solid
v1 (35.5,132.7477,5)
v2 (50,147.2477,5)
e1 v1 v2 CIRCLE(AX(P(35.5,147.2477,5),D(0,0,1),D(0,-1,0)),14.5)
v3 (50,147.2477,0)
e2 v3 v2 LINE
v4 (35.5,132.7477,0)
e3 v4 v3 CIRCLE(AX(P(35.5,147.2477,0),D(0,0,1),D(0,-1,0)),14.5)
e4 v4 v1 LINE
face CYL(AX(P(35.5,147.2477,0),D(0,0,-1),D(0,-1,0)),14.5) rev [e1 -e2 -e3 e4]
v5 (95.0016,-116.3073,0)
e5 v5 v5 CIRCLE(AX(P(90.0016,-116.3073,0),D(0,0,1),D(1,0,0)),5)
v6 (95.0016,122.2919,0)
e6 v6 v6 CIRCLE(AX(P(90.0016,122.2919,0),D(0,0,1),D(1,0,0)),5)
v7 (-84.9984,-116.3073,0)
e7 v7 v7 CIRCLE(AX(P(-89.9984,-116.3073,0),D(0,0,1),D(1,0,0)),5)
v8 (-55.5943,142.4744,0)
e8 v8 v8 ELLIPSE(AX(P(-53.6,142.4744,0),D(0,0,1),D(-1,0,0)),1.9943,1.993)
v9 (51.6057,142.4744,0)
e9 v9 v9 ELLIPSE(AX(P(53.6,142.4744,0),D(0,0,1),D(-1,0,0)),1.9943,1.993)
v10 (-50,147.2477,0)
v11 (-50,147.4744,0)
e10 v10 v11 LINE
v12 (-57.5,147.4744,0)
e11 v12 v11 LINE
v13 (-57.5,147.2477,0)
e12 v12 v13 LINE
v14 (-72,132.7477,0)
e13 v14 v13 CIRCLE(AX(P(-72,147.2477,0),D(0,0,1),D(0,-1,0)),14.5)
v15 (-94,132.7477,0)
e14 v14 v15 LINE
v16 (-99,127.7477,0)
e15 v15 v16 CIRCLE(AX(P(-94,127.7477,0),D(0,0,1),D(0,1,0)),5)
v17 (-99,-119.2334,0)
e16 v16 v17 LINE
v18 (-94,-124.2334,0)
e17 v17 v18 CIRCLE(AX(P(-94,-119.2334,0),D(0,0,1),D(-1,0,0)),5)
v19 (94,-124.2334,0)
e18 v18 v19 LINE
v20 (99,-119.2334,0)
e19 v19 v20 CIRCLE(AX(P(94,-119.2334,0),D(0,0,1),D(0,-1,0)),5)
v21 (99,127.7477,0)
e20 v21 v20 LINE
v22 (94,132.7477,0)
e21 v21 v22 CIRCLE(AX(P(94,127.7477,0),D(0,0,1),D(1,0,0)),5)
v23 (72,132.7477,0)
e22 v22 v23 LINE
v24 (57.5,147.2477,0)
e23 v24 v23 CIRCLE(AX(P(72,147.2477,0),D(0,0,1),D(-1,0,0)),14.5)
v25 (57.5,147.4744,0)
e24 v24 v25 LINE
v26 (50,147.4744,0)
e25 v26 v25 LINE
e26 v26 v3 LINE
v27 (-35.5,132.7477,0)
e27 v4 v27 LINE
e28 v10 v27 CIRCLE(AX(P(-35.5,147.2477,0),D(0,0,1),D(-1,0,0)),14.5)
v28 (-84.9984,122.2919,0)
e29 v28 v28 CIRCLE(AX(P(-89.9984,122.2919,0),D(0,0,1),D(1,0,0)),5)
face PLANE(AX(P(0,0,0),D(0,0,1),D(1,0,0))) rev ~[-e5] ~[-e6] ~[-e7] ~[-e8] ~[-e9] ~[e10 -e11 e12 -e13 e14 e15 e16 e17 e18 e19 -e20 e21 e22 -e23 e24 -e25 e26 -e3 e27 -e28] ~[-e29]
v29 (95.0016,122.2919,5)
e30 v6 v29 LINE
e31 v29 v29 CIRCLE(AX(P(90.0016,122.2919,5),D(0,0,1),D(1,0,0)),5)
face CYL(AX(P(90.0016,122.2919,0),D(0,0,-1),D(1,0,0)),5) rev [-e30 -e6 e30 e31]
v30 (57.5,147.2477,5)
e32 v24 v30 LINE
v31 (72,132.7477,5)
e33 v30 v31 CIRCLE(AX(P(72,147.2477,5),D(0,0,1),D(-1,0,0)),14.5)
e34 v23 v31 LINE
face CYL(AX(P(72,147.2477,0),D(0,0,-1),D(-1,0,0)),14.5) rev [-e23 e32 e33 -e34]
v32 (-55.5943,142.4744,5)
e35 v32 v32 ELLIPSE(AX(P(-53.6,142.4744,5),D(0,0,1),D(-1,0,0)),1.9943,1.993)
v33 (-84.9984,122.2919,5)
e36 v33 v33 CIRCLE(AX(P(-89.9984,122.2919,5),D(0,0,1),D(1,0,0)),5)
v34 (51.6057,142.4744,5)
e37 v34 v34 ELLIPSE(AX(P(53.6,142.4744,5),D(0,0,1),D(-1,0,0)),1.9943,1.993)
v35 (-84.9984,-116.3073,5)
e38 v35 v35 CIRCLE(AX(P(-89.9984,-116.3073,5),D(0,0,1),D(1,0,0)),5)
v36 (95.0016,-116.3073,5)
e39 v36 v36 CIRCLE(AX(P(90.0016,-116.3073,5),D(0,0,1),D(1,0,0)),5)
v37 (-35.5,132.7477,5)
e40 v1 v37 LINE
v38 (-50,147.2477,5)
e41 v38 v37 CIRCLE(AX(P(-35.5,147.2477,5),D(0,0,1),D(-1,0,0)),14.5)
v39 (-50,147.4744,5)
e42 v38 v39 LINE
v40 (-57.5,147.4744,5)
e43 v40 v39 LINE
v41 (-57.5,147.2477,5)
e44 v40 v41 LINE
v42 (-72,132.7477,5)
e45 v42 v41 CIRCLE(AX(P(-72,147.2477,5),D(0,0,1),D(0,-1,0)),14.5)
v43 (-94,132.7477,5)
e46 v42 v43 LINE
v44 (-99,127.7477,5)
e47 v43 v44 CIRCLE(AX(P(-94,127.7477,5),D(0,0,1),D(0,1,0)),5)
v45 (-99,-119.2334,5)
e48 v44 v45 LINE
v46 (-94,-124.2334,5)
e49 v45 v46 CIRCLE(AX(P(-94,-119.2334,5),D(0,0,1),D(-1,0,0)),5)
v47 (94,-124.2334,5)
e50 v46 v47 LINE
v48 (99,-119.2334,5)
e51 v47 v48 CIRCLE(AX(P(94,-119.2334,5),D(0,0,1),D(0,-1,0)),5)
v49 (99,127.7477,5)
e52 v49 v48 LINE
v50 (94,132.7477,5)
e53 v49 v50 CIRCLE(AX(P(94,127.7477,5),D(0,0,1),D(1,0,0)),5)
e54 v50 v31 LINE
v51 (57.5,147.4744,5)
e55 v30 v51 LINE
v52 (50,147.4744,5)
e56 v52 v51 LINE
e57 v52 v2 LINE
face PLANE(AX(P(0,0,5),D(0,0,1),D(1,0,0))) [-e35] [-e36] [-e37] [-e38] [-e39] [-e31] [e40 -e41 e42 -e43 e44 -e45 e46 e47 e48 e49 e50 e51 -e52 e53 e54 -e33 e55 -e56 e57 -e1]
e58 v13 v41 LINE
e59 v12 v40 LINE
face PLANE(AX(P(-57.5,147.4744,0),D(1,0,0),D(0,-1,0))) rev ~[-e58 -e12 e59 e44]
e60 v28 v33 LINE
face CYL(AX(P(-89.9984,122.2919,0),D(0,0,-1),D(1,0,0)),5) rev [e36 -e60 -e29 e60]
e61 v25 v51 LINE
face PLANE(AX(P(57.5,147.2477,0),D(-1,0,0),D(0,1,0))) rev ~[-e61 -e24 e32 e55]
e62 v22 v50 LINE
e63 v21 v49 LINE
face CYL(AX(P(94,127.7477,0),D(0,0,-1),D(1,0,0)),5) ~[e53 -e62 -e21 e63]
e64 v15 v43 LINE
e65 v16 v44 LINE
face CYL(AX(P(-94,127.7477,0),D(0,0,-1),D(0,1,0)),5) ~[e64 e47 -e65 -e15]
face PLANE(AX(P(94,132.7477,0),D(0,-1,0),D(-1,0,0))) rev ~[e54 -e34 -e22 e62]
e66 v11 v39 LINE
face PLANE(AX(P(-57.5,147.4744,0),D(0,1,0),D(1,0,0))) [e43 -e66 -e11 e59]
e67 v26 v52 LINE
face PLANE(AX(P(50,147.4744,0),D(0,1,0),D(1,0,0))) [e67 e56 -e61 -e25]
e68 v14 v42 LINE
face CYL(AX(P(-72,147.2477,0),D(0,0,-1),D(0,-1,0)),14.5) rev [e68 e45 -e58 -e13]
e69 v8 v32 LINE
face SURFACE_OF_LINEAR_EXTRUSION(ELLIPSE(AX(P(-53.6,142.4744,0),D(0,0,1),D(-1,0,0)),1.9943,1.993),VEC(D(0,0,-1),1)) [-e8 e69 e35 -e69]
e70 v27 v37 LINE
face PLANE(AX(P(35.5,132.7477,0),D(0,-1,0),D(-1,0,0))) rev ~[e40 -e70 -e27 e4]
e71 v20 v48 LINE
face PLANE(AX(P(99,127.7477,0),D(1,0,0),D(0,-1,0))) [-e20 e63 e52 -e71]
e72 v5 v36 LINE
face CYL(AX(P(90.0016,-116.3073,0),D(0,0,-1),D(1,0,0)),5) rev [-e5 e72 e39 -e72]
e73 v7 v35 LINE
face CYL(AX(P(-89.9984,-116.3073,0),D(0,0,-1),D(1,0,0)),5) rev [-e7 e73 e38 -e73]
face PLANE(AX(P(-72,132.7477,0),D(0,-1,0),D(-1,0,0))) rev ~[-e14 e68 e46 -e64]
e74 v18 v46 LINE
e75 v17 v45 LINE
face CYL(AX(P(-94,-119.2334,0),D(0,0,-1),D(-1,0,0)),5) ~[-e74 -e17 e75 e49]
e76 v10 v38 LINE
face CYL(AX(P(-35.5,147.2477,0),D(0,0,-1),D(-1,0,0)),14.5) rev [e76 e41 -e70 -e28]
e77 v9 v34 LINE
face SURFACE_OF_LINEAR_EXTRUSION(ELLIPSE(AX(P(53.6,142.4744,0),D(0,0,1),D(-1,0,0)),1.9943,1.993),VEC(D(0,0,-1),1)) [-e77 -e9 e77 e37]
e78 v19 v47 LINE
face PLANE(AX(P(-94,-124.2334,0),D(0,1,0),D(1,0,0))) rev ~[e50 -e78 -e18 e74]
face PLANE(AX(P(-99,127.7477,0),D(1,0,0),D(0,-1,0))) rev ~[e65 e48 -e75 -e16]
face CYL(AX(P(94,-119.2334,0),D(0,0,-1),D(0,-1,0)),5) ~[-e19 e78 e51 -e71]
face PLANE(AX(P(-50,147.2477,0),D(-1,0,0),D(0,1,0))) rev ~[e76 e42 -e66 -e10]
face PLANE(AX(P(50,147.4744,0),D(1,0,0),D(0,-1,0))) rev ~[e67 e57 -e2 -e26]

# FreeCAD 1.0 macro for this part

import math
import FreeCAD as App
import Part
import Sketcher

doc = App.newDocument("Part")
body = doc.addObject("PartDesign::Body", "Body")

# Sketch on XY plane
sketch1 = doc.addObject("Sketcher::SketchObject", "Sketch")
body.addObject(sketch1)
sketch1.AttachmentSupport = (doc.XY_Plane, [""])
sketch1.MapMode = "FlatFace"
sketch1.addGeometry([
    Part.LineSegment(App.Vector(-50, 147.4744, 0), App.Vector(-57.5, 147.4744, 0)),  # 0
    Part.LineSegment(App.Vector(-57.5, 147.4744, 0), App.Vector(-57.5, 147.2477, 0)),  # 1
    Part.ArcOfCircle(Part.Circle(App.Vector(-72, 147.2477, 0), App.Vector(0, 0, 1), 14.5), math.radians(-90), math.radians(0)),  # 2
    Part.LineSegment(App.Vector(-72, 132.7477, 0), App.Vector(-94, 132.7477, 0)),  # 3
    Part.ArcOfCircle(Part.Circle(App.Vector(-94, 127.7477, 0), App.Vector(0, 0, 1), 5), math.radians(90), math.radians(180)),  # 4
    Part.LineSegment(App.Vector(-99, 127.7477, 0), App.Vector(-99, -119.2334, 0)),  # 5
    Part.ArcOfCircle(Part.Circle(App.Vector(-94, -119.2334, 0), App.Vector(0, 0, 1), 5), math.radians(180), math.radians(270)),  # 6
    Part.LineSegment(App.Vector(-94, -124.2334, 0), App.Vector(94, -124.2334, 0)),  # 7
    Part.ArcOfCircle(Part.Circle(App.Vector(94, -119.2334, 0), App.Vector(0, 0, 1), 5), math.radians(-90), math.radians(0)),  # 8
    Part.LineSegment(App.Vector(99, -119.2334, 0), App.Vector(99, 127.7477, 0)),  # 9
    Part.ArcOfCircle(Part.Circle(App.Vector(94, 127.7477, 0), App.Vector(0, 0, 1), 5), math.radians(0), math.radians(90)),  # 10
    Part.LineSegment(App.Vector(94, 132.7477, 0), App.Vector(72, 132.7477, 0)),  # 11
    Part.ArcOfCircle(Part.Circle(App.Vector(72, 147.2477, 0), App.Vector(0, 0, 1), 14.5), math.radians(180), math.radians(270)),  # 12
    Part.LineSegment(App.Vector(57.5, 147.2477, 0), App.Vector(57.5, 147.4744, 0)),  # 13
    Part.LineSegment(App.Vector(57.5, 147.4744, 0), App.Vector(50, 147.4744, 0)),  # 14
    Part.LineSegment(App.Vector(50, 147.4744, 0), App.Vector(50, 147.2477, 0)),  # 15
    Part.ArcOfCircle(Part.Circle(App.Vector(35.5, 147.2477, 0), App.Vector(0, 0, 1), 14.5), math.radians(-90), math.radians(0)),  # 16
    Part.LineSegment(App.Vector(35.5, 132.7477, 0), App.Vector(-35.5, 132.7477, 0)),  # 17
    Part.ArcOfCircle(Part.Circle(App.Vector(-35.5, 147.2477, 0), App.Vector(0, 0, 1), 14.5), math.radians(180), math.radians(270)),  # 18
    Part.LineSegment(App.Vector(-50, 147.2477, 0), App.Vector(-50, 147.4744, 0)),  # 19
    Part.Circle(App.Vector(-89.9984, -116.3073, 0), App.Vector(0, 0, 1), 5),  # 20
    Part.Circle(App.Vector(90.0016, -116.3073, 0), App.Vector(0, 0, 1), 5),  # 21
    Part.Circle(App.Vector(-89.9984, 122.2919, 0), App.Vector(0, 0, 1), 5),  # 22
    Part.Ellipse(App.Vector(-55.5943, 142.4744, 0), App.Vector(-53.6, 140.4814, 0), App.Vector(-53.6, 142.4744, 0)),  # 23
    Part.Ellipse(App.Vector(51.6057, 142.4744, 0), App.Vector(53.6, 140.4814, 0), App.Vector(53.6, 142.4744, 0)),  # 24
    Part.Circle(App.Vector(90.0016, 122.2919, 0), App.Vector(0, 0, 1), 5),  # 25
], False)
sketch1.addConstraint([
    Sketcher.Constraint("Block", 23),
    Sketcher.Constraint("Block", 24),
    Sketcher.Constraint("Coincident", 0, 2, 1, 1),
    Sketcher.Constraint("Tangent", 1, 2, 2, 2),
    Sketcher.Constraint("Tangent", 2, 1, 3, 1),
    Sketcher.Constraint("Tangent", 3, 2, 4, 1),
    Sketcher.Constraint("Tangent", 4, 2, 5, 1),
    Sketcher.Constraint("Tangent", 5, 2, 6, 1),
    Sketcher.Constraint("Tangent", 6, 2, 7, 1),
    Sketcher.Constraint("Tangent", 7, 2, 8, 1),
    Sketcher.Constraint("Tangent", 8, 2, 9, 1),
    Sketcher.Constraint("Tangent", 9, 2, 10, 1),
    Sketcher.Constraint("Tangent", 10, 2, 11, 1),
    Sketcher.Constraint("Tangent", 11, 2, 12, 2),
    Sketcher.Constraint("Tangent", 12, 1, 13, 1),
    Sketcher.Constraint("Coincident", 13, 2, 14, 1),
    Sketcher.Constraint("Coincident", 14, 2, 15, 1),
    Sketcher.Constraint("Tangent", 15, 2, 16, 2),
    Sketcher.Constraint("Tangent", 16, 1, 17, 1),
    Sketcher.Constraint("Tangent", 17, 2, 18, 2),
    Sketcher.Constraint("Tangent", 18, 1, 19, 1),
    Sketcher.Constraint("Coincident", 19, 2, 0, 1),
    Sketcher.Constraint("Horizontal", 0),
    Sketcher.Constraint("Vertical", 1),
    Sketcher.Constraint("Horizontal", 3),
    Sketcher.Constraint("Vertical", 5),
    Sketcher.Constraint("Horizontal", 7),
    Sketcher.Constraint("Vertical", 9),
    Sketcher.Constraint("Horizontal", 11),
    Sketcher.Constraint("Vertical", 13),
    Sketcher.Constraint("Horizontal", 14),
    Sketcher.Constraint("Vertical", 15),
    Sketcher.Constraint("Horizontal", 17),
    Sketcher.Constraint("Vertical", 19),
    Sketcher.Constraint("Equal", 4, 6),
    Sketcher.Constraint("Equal", 6, 8),
    Sketcher.Constraint("Equal", 8, 10),
    Sketcher.Constraint("Equal", 2, 12),
    Sketcher.Constraint("Equal", 12, 16),
    Sketcher.Constraint("Equal", 16, 18),
    Sketcher.Constraint("Equal", 10, 20),
    Sketcher.Constraint("Equal", 20, 21),
    Sketcher.Constraint("Equal", 21, 22),
    Sketcher.Constraint("Equal", 22, 25),
    Sketcher.Constraint("Symmetric", 4, 3, 10, 3, -2),
    Sketcher.Constraint("Symmetric", 0, 2, 13, 2, -2),
    Sketcher.Constraint("Horizontal", 12, 3, 16, 3),
    Sketcher.Constraint("Horizontal", 20, 3, 21, 3),
    Sketcher.Constraint("Horizontal", 22, 3, 25, 3),
    Sketcher.Constraint("Vertical", 20, 3, 22, 3),
    Sketcher.Constraint("Vertical", 21, 3, 25, 3),
    Sketcher.Constraint("Equal", 0, 14),
    Sketcher.Constraint("Diameter", 20, 10.0),
    Sketcher.Constraint("Radius", 2, 14.5),
    Sketcher.Constraint("DistanceX", 0, 2, 0, 1, 7.5),
    Sketcher.Constraint("DistanceX", 3, 2, 3, 1, 22.0),
    Sketcher.Constraint("DistanceX", 7, 1, 7, 2, 188.0),
    Sketcher.Constraint("DistanceX", 20, 3, 21, 3, 180.0),
    Sketcher.Constraint("DistanceY", 2, 1, 0, 2, 14.7267),
    Sketcher.Constraint("DistanceY", 5, 2, 5, 1, 246.981),
    Sketcher.Constraint("DistanceY", -1, 1, 22, 3, 122.292),
    Sketcher.Constraint("DistanceY", 6, 3, 20, 3, 2.926),
    Sketcher.Constraint("DistanceY", -1, 1, 2, 3, 147.2477),
    Sketcher.Constraint("DistanceX", 20, 3, -1, 1, 89.9984),
])
pad1 = doc.addObject("PartDesign::Pad", "Pad")
body.addObject(pad1)
pad1.Profile = sketch1
pad1.Length = 5

doc.recompute()
